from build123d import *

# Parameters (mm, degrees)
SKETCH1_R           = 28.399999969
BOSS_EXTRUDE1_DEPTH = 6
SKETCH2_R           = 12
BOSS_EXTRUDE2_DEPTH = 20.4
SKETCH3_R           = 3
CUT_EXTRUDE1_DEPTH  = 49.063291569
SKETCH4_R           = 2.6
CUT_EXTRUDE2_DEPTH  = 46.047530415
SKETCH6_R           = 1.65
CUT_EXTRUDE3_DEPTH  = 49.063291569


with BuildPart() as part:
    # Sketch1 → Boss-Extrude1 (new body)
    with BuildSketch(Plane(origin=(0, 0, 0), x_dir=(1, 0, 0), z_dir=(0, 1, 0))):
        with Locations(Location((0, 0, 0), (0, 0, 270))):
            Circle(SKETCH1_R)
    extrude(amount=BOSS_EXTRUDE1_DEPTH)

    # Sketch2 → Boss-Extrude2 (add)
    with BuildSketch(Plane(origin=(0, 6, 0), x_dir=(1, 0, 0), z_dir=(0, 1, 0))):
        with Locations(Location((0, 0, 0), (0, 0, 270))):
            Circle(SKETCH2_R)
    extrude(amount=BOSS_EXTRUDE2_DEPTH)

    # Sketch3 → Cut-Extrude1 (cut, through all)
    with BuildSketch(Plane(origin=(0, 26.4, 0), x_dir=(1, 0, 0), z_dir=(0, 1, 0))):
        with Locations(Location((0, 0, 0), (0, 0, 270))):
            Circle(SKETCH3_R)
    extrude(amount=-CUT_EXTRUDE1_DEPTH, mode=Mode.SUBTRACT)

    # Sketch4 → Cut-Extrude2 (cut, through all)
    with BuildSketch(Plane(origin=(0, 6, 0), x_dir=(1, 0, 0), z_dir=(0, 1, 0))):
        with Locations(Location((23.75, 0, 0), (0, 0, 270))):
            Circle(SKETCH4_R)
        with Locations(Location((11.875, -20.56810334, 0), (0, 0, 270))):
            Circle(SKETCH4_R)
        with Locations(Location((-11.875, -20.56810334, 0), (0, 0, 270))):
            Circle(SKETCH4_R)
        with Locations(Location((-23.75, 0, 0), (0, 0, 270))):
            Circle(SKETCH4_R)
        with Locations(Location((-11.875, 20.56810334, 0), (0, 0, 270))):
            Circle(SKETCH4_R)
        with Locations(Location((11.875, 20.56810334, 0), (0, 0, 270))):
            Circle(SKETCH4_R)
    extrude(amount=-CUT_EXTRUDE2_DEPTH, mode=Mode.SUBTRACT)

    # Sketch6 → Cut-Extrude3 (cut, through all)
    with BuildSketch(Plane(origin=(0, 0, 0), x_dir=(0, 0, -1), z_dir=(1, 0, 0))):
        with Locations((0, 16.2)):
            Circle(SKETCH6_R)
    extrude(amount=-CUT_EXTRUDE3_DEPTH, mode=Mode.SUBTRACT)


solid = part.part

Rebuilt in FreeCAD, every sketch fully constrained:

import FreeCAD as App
import Part
import Sketcher
Q = App.Units.Quantity

doc = App.newDocument("Part")
body = doc.addObject("PartDesign::Body", "Body")

# Sketch on XZ plane
sketch1 = body.newObject("Sketcher::SketchObject", "Sketch")
sketch1.AttachmentSupport = (doc.getObject("XZ_Plane"), [""])
sketch1.MapMode = "FlatFace"
sketch1.addGeometry(Part.Circle(App.Vector(0, 0, 0), App.Vector(0, 0, 1), 28), False)
sketch1.addConstraint(Sketcher.Constraint("Coincident", 0, 3, -1, 1))
sketch1.addConstraint(Sketcher.Constraint("Diameter", 0, Q("56.8 mm")))
pad1 = body.newObject("PartDesign::Pad", "Pad")
pad1.Profile = sketch1
pad1.Length = 6
pad1.Reversed = True

# Sketch on XZ plane
sketch2 = body.newObject("Sketcher::SketchObject", "Sketch001")
sketch2.AttachmentSupport = (doc.getObject("XZ_Plane"), [""])
sketch2.MapMode = "FlatFace"
sketch2.AttachmentOffset = App.Placement(App.Vector(0, 0, -6), App.Rotation())
sketch2.addGeometry(Part.Circle(App.Vector(0, 0, 0), App.Vector(0, 0, 1), 12), False)
sketch2.addConstraint(Sketcher.Constraint("Coincident", 0, 3, -1, 1))
sketch2.addConstraint(Sketcher.Constraint("Diameter", 0, Q("24 mm")))
pad2 = body.newObject("PartDesign::Pad", "Pad001")
pad2.Profile = sketch2
pad2.Length = 20.4
pad2.Reversed = True

# Sketch on XZ plane
sketch3 = body.newObject("Sketcher::SketchObject", "Sketch002")
sketch3.AttachmentSupport = (doc.getObject("XZ_Plane"), [""])
sketch3.MapMode = "FlatFace"
sketch3.AttachmentOffset = App.Placement(App.Vector(0, 0, -26.4), App.Rotation())
sketch3.addGeometry(Part.Circle(App.Vector(0, 0, 0), App.Vector(0, 0, 1), 3), False)
sketch3.addConstraint(Sketcher.Constraint("Coincident", 0, 3, -1, 1))
sketch3.addConstraint(Sketcher.Constraint("Diameter", 0, Q("6 mm")))
pocket1 = body.newObject("PartDesign::Pocket", "Pocket")
pocket1.Profile = sketch3
pocket1.Type = "ThroughAll"
pocket1.Reversed = True

# Sketch on XZ plane
sketch4 = body.newObject("Sketcher::SketchObject", "Sketch003")
sketch4.AttachmentSupport = (doc.getObject("XZ_Plane"), [""])
sketch4.MapMode = "FlatFace"
sketch4.AttachmentOffset = App.Placement(App.Vector(0, 0, -6), App.Rotation())
sketch4.addGeometry(Part.Circle(App.Vector(23.8, 0, 0), App.Vector(0, 0, 1), 2.6), False)
sketch4.addGeometry(Part.Circle(App.Vector(11.9, 20.6, 0), App.Vector(0, 0, 1), 2.6), False)
sketch4.addGeometry(Part.Circle(App.Vector(-11.9, 20.6, 0), App.Vector(0, 0, 1), 2.6), False)
sketch4.addGeometry(Part.Circle(App.Vector(-23.8, 0, 0), App.Vector(0, 0, 1), 2.6), False)
sketch4.addGeometry(Part.Circle(App.Vector(-11.9, -20.6, 0), App.Vector(0, 0, 1), 2.6), False)
sketch4.addGeometry(Part.Circle(App.Vector(11.9, -20.6, 0), App.Vector(0, 0, 1), 2.6), False)
sketch4.addConstraint(Sketcher.Constraint("Equal", 0, 1))
sketch4.addConstraint(Sketcher.Constraint("Equal", 1, 2))
sketch4.addConstraint(Sketcher.Constraint("Equal", 2, 3))
sketch4.addConstraint(Sketcher.Constraint("Equal", 3, 4))
sketch4.addConstraint(Sketcher.Constraint("Equal", 4, 5))
sketch4.addConstraint(Sketcher.Constraint("Symmetric", 0, 3, 3, 3, -1, 1))
sketch4.addConstraint(Sketcher.Constraint("Symmetric", 1, 3, 4, 3, -1, 1))
sketch4.addConstraint(Sketcher.Constraint("Symmetric", 2, 3, 5, 3, -1, 1))
sketch4.addConstraint(Sketcher.Constraint("Symmetric", 1, 3, 2, 3, -2))
sketch4.addConstraint(Sketcher.Constraint("PointOnObject", 0, 3, -1))
sketch4.addConstraint(Sketcher.Constraint("Diameter", 0, Q("5.2 mm")))
sketch4.addConstraint(Sketcher.Constraint("DistanceX", 3, 3, 0, 3, Q("47.5 mm")))
sketch4.addConstraint(Sketcher.Constraint("DistanceX", 2, 3, 1, 3, Q("23.75 mm")))
sketch4.addConstraint(Sketcher.Constraint("DistanceY", -1, 1, 1, 3, Q("20.568103 mm")))
pocket2 = body.newObject("PartDesign::Pocket", "Pocket001")
pocket2.Profile = sketch4
pocket2.Type = "ThroughAll"
pocket2.Reversed = True

# Sketch on YZ plane
sketch5 = body.newObject("Sketcher::SketchObject", "Sketch004")
sketch5.AttachmentSupport = (doc.getObject("YZ_Plane"), [""])
sketch5.MapMode = "FlatFace"
sketch5.addGeometry(Part.Circle(App.Vector(16.2, 0, 0), App.Vector(0, 0, 1), 1.6), False)
sketch5.addConstraint(Sketcher.Constraint("PointOnObject", 0, 3, -1))
sketch5.addConstraint(Sketcher.Constraint("Diameter", 0, Q("3.3 mm")))
sketch5.addConstraint(Sketcher.Constraint("DistanceX", -1, 1, 0, 3, Q("16.2 mm")))
pocket3 = body.newObject("PartDesign::Pocket", "Pocket002")
pocket3.Profile = sketch5
pocket3.Type = "ThroughAll"

doc.recompute()
